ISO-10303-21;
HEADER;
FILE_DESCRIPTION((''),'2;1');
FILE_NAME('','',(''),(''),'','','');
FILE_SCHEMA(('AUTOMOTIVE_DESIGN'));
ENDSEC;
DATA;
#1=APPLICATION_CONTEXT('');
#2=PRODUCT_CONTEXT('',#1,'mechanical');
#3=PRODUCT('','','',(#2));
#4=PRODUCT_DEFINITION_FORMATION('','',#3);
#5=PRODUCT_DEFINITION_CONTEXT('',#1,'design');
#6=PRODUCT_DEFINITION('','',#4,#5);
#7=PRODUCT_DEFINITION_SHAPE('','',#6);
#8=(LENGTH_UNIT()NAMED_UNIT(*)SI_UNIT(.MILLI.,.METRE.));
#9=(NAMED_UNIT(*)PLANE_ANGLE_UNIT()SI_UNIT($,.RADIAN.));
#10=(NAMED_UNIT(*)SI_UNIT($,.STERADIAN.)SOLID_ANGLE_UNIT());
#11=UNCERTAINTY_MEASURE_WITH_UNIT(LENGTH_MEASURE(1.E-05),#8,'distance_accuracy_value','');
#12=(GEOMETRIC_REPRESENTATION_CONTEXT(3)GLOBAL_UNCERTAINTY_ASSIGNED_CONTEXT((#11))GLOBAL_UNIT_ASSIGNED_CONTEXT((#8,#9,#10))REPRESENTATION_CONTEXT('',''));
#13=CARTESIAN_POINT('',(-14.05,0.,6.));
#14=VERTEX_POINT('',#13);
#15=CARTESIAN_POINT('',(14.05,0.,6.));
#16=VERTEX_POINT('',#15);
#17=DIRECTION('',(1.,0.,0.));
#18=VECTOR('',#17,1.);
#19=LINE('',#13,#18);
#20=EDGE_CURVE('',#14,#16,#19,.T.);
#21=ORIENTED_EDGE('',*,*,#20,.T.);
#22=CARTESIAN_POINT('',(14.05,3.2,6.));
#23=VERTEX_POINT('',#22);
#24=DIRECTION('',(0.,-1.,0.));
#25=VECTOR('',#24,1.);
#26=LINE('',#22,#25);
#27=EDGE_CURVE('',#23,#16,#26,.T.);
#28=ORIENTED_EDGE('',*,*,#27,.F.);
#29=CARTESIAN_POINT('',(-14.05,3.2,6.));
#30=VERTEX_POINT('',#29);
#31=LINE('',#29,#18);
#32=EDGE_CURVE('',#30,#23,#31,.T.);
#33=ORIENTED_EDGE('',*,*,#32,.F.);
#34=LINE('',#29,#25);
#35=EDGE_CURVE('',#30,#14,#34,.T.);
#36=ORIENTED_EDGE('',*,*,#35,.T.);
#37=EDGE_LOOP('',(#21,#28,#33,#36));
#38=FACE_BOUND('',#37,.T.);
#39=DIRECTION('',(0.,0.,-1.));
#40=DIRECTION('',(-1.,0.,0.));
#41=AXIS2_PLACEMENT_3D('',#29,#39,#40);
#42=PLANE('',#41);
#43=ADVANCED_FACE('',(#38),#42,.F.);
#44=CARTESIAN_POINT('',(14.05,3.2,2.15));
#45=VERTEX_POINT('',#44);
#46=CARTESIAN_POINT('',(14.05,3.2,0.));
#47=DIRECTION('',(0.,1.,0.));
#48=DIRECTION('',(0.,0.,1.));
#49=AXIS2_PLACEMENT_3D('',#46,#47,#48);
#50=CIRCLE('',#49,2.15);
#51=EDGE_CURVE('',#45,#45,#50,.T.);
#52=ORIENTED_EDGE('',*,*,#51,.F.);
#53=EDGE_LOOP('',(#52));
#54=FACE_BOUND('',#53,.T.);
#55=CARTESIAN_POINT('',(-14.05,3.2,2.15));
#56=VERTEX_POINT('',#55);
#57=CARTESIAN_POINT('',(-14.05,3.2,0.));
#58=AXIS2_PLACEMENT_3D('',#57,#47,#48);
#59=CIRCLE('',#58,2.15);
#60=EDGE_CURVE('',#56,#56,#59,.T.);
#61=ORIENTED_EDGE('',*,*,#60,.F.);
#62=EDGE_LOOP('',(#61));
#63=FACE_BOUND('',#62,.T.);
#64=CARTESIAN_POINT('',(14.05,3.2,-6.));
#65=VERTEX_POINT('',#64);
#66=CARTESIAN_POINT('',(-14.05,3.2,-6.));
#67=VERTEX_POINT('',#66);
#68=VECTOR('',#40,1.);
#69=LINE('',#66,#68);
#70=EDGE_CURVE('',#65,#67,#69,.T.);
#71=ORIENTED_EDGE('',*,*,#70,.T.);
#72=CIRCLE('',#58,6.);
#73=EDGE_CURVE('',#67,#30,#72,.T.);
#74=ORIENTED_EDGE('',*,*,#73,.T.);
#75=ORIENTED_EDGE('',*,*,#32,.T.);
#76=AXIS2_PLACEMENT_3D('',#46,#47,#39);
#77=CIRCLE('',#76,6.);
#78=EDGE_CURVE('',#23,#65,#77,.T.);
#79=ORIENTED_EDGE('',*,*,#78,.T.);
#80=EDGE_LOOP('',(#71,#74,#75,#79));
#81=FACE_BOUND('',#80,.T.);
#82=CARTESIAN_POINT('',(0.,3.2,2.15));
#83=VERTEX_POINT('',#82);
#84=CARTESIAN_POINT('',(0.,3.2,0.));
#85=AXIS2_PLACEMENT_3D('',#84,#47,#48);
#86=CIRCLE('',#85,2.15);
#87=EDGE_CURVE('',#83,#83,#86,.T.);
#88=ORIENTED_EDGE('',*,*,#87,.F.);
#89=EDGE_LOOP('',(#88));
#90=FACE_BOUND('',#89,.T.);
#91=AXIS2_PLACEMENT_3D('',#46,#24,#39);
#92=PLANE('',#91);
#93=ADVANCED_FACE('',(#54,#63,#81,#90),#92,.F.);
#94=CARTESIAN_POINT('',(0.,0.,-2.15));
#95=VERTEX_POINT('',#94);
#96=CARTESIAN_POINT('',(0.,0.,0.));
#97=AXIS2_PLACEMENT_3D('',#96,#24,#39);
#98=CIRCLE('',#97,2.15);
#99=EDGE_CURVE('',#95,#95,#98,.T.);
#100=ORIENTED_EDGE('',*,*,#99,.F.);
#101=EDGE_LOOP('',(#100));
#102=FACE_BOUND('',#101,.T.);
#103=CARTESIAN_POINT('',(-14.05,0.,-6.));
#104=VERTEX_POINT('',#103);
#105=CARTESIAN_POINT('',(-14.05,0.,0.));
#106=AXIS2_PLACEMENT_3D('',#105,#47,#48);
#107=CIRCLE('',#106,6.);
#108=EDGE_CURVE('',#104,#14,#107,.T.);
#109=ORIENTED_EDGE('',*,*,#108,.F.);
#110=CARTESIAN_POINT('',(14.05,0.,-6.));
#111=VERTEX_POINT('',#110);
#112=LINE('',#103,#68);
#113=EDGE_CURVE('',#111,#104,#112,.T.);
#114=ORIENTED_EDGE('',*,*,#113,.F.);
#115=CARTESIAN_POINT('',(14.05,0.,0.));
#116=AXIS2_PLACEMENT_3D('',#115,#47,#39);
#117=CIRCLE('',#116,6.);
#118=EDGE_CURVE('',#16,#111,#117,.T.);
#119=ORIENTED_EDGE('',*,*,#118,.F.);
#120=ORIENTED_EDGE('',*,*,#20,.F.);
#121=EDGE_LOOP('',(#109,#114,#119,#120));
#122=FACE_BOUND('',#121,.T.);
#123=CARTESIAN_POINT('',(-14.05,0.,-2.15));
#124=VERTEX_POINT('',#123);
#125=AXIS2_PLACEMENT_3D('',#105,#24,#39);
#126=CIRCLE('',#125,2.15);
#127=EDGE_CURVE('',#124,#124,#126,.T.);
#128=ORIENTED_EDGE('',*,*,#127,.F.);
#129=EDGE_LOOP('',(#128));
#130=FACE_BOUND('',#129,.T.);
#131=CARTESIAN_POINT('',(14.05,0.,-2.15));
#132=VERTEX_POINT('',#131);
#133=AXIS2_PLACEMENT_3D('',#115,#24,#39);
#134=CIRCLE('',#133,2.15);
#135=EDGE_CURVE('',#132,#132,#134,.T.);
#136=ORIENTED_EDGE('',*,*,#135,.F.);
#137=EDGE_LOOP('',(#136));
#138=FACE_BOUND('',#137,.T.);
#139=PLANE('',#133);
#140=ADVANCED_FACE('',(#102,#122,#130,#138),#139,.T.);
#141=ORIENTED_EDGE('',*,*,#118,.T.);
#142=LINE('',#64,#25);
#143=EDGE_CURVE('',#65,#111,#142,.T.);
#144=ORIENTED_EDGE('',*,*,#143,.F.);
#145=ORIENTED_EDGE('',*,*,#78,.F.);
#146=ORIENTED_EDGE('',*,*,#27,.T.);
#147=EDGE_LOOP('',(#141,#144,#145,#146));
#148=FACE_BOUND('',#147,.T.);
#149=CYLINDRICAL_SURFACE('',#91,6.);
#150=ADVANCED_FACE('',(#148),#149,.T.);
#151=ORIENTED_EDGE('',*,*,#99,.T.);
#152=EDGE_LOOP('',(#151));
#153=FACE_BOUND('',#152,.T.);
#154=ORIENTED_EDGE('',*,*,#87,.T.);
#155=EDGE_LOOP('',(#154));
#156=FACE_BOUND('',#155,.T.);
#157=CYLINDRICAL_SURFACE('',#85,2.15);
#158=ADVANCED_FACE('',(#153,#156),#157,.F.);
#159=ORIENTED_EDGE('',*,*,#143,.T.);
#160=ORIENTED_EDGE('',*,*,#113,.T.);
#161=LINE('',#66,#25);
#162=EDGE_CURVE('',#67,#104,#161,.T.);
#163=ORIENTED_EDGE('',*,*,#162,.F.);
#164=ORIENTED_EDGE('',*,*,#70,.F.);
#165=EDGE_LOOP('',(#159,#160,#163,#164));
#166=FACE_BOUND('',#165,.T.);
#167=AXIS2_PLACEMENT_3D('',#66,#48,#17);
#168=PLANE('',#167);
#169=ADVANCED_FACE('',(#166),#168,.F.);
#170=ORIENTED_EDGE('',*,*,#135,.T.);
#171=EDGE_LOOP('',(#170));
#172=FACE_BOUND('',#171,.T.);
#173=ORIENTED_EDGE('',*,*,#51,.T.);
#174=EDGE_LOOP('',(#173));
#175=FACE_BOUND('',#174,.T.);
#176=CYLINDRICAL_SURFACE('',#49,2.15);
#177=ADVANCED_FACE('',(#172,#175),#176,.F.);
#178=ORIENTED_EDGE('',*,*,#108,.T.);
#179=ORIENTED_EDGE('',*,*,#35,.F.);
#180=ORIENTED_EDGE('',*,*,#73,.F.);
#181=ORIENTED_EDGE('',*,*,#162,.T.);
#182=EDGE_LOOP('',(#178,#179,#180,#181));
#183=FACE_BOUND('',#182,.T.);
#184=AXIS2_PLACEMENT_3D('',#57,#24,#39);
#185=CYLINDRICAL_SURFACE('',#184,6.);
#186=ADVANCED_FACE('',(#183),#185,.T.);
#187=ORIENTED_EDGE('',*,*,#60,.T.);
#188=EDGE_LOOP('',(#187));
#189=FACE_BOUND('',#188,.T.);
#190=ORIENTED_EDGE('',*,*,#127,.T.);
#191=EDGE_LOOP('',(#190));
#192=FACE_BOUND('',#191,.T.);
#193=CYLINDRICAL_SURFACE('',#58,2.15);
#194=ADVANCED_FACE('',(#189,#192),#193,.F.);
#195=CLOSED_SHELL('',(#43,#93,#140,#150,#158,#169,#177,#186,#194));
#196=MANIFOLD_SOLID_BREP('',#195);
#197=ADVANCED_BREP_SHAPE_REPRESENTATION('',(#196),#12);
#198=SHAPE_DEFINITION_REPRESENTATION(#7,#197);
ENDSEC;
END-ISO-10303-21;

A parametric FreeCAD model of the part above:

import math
import FreeCAD as App
import Part
import Sketcher

V = App.Vector
Q = App.Units.Quantity

doc = App.newDocument("Part")
body = doc.addObject("PartDesign::Body", "Body")

# Sketch on XZ plane
sketch1 = doc.addObject("Sketcher::SketchObject", "Sketch")
body.addObject(sketch1)
sketch1.AttachmentSupport = (doc.XZ_Plane, [""])
sketch1.MapMode = "FlatFace"
sketch1.addGeometry(Part.LineSegment(V(14, -6, 0), V(-14, -6, 0)), False)
sketch1.addGeometry(Part.ArcOfCircle(Part.Circle(V(-14, 0, 0), V(0, 0, 1), 6), math.radians(90), math.radians(270)), False)
sketch1.addGeometry(Part.LineSegment(V(-14, 6, 0), V(14, 6, 0)), False)
sketch1.addGeometry(Part.ArcOfCircle(Part.Circle(V(14, 0, 0), V(0, 0, 1), 6), math.radians(-90), math.radians(90)), False)
sketch1.addConstraint(Sketcher.Constraint("Tangent", 0, 2, 1, 2))
sketch1.addConstraint(Sketcher.Constraint("Tangent", 1, 1, 2, 1))
sketch1.addConstraint(Sketcher.Constraint("Tangent", 2, 2, 3, 2))
sketch1.addConstraint(Sketcher.Constraint("Tangent", 3, 1, 0, 1))
sketch1.addConstraint(Sketcher.Constraint("Horizontal", 0))
sketch1.addConstraint(Sketcher.Constraint("Horizontal", 2))
sketch1.addConstraint(Sketcher.Constraint("Symmetric", 1, 3, 3, 3, -1, 1))
sketch1.addConstraint(Sketcher.Constraint("Radius", 1, Q("6 mm")))
sketch1.addConstraint(Sketcher.Constraint("DistanceX", 0, 2, 0, 1, Q("28.1 mm")))
pad1 = doc.addObject("PartDesign::Pad", "Pad")
body.addObject(pad1)
pad1.Profile = sketch1
pad1.Length = 3.2
pad1.Reversed = True

# Sketch on XZ plane
sketch2 = doc.addObject("Sketcher::SketchObject", "Sketch001")
body.addObject(sketch2)
sketch2.AttachmentSupport = (doc.XZ_Plane, [""])
sketch2.MapMode = "FlatFace"
sketch2.AttachmentOffset = App.Placement(V(0, 0, -3.2), App.Rotation())
sketch2.addGeometry(Part.Circle(V(0, 0, 0), V(0, 0, 1), 2.1), False)
sketch2.addGeometry(Part.Circle(V(14.1, 0, 0), V(0, 0, 1), 2.1), False)
sketch2.addGeometry(Part.Circle(V(-14.1, 0, 0), V(0, 0, 1), 2.1), False)
sketch2.addConstraint(Sketcher.Constraint("Coincident", 0, 3, -1, 1))
sketch2.addConstraint(Sketcher.Constraint("Equal", 0, 1))
sketch2.addConstraint(Sketcher.Constraint("Equal", 1, 2))
sketch2.addConstraint(Sketcher.Constraint("Symmetric", 1, 3, 2, 3, -1, 1))
sketch2.addConstraint(Sketcher.Constraint("PointOnObject", 1, 3, -1))
sketch2.addConstraint(Sketcher.Constraint("Diameter", 0, Q("4.3 mm")))
sketch2.addConstraint(Sketcher.Constraint("DistanceX", 2, 3, 1, 3, Q("28.1 mm")))
doc.recompute()
hole = doc.addObject("PartDesign::Hole", "Hole")
body.addObject(hole)
hole.Profile = sketch2
hole.ThreadType = "None"
hole.Diameter = 4.3
hole.DepthType = "ThroughAll"
hole.Reversed = True

doc.recompute()
